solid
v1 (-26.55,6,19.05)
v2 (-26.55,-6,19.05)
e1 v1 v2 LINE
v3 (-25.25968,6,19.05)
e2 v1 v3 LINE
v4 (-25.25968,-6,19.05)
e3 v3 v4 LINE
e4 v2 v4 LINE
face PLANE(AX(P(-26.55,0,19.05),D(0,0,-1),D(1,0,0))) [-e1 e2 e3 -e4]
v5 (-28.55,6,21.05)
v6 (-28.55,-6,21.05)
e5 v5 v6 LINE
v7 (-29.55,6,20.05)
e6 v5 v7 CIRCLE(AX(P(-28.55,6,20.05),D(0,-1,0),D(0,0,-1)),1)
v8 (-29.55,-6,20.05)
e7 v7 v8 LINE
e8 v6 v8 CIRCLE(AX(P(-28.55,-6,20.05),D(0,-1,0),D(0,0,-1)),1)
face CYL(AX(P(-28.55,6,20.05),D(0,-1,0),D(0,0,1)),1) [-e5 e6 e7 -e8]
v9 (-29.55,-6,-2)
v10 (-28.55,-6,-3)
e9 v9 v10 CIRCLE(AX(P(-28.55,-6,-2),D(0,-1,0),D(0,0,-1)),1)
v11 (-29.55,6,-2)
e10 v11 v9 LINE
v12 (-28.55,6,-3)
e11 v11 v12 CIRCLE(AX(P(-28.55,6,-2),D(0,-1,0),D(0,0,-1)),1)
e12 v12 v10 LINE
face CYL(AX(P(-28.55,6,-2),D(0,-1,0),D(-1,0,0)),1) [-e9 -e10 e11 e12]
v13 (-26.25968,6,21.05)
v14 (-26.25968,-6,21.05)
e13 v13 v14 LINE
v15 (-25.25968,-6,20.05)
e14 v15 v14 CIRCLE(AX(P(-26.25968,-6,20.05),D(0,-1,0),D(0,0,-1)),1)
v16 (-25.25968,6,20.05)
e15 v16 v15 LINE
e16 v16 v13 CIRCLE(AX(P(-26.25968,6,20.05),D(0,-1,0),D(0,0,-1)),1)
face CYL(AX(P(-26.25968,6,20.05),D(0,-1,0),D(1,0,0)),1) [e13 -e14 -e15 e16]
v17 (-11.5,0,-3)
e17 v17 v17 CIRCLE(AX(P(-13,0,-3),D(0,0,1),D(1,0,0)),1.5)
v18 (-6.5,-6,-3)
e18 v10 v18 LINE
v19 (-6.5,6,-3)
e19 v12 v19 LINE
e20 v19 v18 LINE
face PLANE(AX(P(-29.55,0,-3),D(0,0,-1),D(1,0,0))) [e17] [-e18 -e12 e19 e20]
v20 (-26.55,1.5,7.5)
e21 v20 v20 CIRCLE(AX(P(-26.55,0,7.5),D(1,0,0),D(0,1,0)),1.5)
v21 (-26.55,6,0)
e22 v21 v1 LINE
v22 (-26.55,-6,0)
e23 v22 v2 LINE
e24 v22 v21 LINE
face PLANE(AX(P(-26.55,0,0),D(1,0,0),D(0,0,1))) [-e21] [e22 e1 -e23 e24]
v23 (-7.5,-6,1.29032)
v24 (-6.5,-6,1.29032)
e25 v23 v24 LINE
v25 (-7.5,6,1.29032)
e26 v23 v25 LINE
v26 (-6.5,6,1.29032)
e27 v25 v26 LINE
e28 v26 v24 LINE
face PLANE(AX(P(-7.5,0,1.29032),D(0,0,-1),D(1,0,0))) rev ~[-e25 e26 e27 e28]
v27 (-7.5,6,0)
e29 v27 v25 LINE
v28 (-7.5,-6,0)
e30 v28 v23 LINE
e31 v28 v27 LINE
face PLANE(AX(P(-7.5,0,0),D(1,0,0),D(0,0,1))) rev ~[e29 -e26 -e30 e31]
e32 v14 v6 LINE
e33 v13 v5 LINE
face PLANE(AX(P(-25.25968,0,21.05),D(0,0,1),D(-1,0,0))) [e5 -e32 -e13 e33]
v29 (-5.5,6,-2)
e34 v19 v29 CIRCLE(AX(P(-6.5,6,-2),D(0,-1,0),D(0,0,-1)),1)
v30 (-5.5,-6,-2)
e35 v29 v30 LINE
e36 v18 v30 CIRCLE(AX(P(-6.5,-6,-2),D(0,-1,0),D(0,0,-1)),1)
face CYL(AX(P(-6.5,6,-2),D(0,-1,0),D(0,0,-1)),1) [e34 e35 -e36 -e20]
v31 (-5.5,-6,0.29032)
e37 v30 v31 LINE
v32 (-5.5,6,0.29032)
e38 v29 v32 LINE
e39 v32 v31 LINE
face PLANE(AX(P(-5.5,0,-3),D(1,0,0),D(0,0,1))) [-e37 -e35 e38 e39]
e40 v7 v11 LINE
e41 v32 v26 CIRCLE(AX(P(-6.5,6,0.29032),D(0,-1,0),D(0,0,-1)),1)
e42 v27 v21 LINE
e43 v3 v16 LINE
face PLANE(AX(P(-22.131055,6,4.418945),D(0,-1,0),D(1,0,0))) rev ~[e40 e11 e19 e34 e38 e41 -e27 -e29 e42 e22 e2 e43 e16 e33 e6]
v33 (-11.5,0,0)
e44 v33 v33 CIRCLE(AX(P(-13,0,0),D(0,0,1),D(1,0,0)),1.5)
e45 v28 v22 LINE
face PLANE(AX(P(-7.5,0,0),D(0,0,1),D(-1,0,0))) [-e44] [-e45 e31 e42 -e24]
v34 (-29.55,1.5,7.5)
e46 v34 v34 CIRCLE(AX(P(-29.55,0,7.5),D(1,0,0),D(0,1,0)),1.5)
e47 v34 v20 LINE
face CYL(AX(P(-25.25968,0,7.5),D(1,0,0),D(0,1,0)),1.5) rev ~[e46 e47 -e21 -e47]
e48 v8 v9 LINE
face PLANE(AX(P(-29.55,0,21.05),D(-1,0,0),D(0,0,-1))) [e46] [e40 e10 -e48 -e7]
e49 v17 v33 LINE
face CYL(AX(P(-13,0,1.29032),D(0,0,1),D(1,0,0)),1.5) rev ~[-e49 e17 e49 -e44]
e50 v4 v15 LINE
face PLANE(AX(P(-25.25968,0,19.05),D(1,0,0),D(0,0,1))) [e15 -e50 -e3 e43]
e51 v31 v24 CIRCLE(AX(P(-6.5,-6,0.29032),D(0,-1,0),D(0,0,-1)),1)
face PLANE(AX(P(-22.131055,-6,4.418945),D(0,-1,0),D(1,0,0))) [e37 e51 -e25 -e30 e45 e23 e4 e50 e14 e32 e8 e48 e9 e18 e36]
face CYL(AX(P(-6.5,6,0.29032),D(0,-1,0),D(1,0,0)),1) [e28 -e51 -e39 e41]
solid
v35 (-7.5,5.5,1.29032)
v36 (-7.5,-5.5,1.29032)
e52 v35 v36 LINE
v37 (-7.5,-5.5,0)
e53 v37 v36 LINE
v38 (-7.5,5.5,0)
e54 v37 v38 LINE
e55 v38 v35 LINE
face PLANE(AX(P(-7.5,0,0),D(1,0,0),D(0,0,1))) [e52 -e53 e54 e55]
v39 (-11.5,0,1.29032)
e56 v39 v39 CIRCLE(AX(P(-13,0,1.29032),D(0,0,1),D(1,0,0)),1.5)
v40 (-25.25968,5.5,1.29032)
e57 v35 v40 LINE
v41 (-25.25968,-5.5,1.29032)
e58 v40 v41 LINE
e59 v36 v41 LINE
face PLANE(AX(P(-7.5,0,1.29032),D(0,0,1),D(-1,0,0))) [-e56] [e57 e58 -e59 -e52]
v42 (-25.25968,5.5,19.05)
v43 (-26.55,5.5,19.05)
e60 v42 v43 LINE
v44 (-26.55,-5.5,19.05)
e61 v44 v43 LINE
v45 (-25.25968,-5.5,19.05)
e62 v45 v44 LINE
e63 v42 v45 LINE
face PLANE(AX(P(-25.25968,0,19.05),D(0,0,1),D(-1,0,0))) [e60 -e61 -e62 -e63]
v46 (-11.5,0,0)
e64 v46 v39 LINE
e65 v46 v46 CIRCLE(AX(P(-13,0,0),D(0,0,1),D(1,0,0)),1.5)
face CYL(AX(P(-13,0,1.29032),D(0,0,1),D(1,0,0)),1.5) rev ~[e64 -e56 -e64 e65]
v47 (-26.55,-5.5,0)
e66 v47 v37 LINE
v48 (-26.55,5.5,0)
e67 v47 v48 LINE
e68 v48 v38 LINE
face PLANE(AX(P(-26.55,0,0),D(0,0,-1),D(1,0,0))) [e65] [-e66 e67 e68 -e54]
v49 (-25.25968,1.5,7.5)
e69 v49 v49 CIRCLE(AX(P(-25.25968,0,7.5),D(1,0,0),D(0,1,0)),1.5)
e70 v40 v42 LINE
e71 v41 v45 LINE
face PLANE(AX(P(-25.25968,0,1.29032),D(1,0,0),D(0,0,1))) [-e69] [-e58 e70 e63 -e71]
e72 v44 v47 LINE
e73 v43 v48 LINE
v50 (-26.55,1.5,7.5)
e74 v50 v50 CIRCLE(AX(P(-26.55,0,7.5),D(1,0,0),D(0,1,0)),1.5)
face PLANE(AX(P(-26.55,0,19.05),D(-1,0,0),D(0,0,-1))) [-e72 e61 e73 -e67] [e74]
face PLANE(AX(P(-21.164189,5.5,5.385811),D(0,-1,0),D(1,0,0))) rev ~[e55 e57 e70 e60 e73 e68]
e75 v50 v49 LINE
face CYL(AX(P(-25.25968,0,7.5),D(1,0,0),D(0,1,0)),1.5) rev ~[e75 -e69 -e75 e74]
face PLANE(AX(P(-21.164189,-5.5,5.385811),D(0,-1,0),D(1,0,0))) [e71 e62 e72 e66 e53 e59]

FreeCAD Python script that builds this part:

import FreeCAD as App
import Part
import Sketcher

V = App.Vector


def edges_at(feature, points):
    """Names of the edges that pass closest to the given points."""
    edges = feature.Shape.Edges
    near = lambda p: min(range(len(edges)), key=lambda i: edges[i].distToShape(Part.Vertex(*p))[0])
    return sorted({f"Edge{near(p) + 1}" for p in points})


def add_polygon(sketch, points):
    """Adds a closed chain of lines whose ends are joined by coincident constraints."""
    first, n = sketch.GeometryCount, len(points)
    for a, b in zip(points, points[1:] + points[:1]):
        sketch.addGeometry(Part.LineSegment(App.Vector(*a, 0), App.Vector(*b, 0)), False)
    for i in range(n):
        sketch.addConstraint(Sketcher.Constraint("Coincident", first + i, 2, first + (i + 1) % n, 1))

doc = App.newDocument("Part")
body = doc.addObject("PartDesign::Body", "Body")

# Sketch on XZ plane
sketch1 = doc.addObject("Sketcher::SketchObject", "Sketch")
body.addObject(sketch1)
sketch1.AttachmentSupport = (doc.XZ_Plane, [""])
sketch1.MapMode = "FlatFace"
add_polygon(sketch1, [(-7.5, 0), (-7.5, 1.3), (-25.3, 1.3), (-25.3, 19.1), (-26.6, 19.1), (-26.6, 0)])  # lines 0-5
sketch1.addConstraint([
    Sketcher.Constraint("Vertical", 0),
    Sketcher.Constraint("Horizontal", 1),
    Sketcher.Constraint("Vertical", 2),
    Sketcher.Constraint("Horizontal", 3),
    Sketcher.Constraint("Vertical", 4),
    Sketcher.Constraint("Horizontal", 5),
    Sketcher.Constraint("PointOnObject", 4, 2, -1),
    Sketcher.Constraint("Equal", 3, 0),
    Sketcher.Constraint("Equal", 1, 2),
    Sketcher.Constraint("DistanceX", 5, 1, 5, 2, 19.05),
    Sketcher.Constraint("DistanceX", 0, 2, -1, 1, 7.5),
    Sketcher.Constraint("DistanceX", 1, 2, 1, 1, 17.75968),
])
pad1 = doc.addObject("PartDesign::Pad", "Pad")
body.addObject(pad1)
pad1.Profile = sketch1
pad1.Length = 11
pad1.Midplane = True
body2 = doc.addObject("PartDesign::Body", "Body001")

# Sketch on XZ plane
sketch2 = doc.addObject("Sketcher::SketchObject", "Sketch001")
body2.addObject(sketch2)
sketch2.AttachmentSupport = (doc.getObject("XZ_Plane001"), [""])
sketch2.MapMode = "FlatFace"
add_polygon(sketch2, [(-26.6, 0), (-26.6, 19.1), (-25.3, 19.1), (-25.3, 21.1), (-29.6, 21.1), (-29.6, -3), (-5.5, -3), (-5.5, 1.3), (-7.5, 1.3), (-7.5, 0)])  # lines 0-9
sketch2.addConstraint([
    Sketcher.Constraint("Vertical", 0),
    Sketcher.Constraint("Horizontal", 1),
    Sketcher.Constraint("Vertical", 2),
    Sketcher.Constraint("Horizontal", 3),
    Sketcher.Constraint("Vertical", 4),
    Sketcher.Constraint("Horizontal", 5),
    Sketcher.Constraint("Vertical", 6),
    Sketcher.Constraint("Horizontal", 7),
    Sketcher.Constraint("Vertical", 8),
    Sketcher.Constraint("Horizontal", 9),
    Sketcher.Constraint("PointOnObject", 8, 2, -1),
    Sketcher.Constraint("Equal", 9, 0),
    Sketcher.Constraint("Equal", 7, 2),
    Sketcher.Constraint("Equal", 5, 4),
    Sketcher.Constraint("Equal", 3, 6),
    Sketcher.Constraint("DistanceX", 7, 2, 7, 1, 2.0),
    Sketcher.Constraint("DistanceY", 4, 2, -1, 1, 3.0),
    Sketcher.Constraint("DistanceX", 5, 1, 5, 2, 24.05),
    Sketcher.Constraint("DistanceX", 5, 2, -1, 1, 5.5),
    Sketcher.Constraint("DistanceX", 1, 1, 1, 2, 1.29032),
])
pad2 = doc.addObject("PartDesign::Pad", "Pad001")
body2.addObject(pad2)
pad2.Profile = sketch2
pad2.Length = 12
pad2.Midplane = True
body3 = doc.addObject("PartDesign::Body", "Body002")

# Sketch on XY plane
sketch3 = doc.addObject("Sketcher::SketchObject", "Sketch002")
body3.addObject(sketch3)
sketch3.AttachmentSupport = (doc.getObject("XY_Plane002"), [""])
sketch3.MapMode = "FlatFace"
sketch3.AttachmentOffset = App.Placement(V(0, 0, 1.29032), App.Rotation())
sketch3.addGeometry(Part.Circle(V(-13, 0, 0), V(0, 0, 1), 1.5), False)
sketch3.addConstraint([
    Sketcher.Constraint("PointOnObject", 0, 3, -1),
    Sketcher.Constraint("Diameter", 0, 3.0),
    Sketcher.Constraint("DistanceX", 0, 3, -1, 1, 13.0),
])
pad3 = doc.addObject("PartDesign::Pad", "Pad002")
body3.addObject(pad3)
pad3.Profile = sketch3
pad3.Length = 25
pad3.Midplane = True
doc.recompute()

body4 = doc.addObject("PartDesign::Body", "Body003")
body4.BaseFeature = body3
boolean = doc.addObject("PartDesign::Boolean", "Boolean")
body.addObject(boolean)
boolean.Type = "Cut"
boolean.addObjects([body4])
doc.recompute()

boolean2 = doc.addObject("PartDesign::Boolean", "Boolean001")
body2.addObject(boolean2)
boolean2.Type = "Cut"
boolean2.addObjects([body3])
body5 = doc.addObject("PartDesign::Body", "Body004")

# Sketch on YZ plane
sketch4 = doc.addObject("Sketcher::SketchObject", "Sketch003")
body5.addObject(sketch4)
sketch4.AttachmentSupport = (doc.getObject("YZ_Plane004"), [""])
sketch4.MapMode = "FlatFace"
sketch4.AttachmentOffset = App.Placement(V(0, 0, -25.25968), App.Rotation())
sketch4.addGeometry(Part.Circle(V(0, 7.5, 0), V(0, 0, 1), 1.5), False)
sketch4.addConstraint([
    Sketcher.Constraint("PointOnObject", 0, 3, -2),
    Sketcher.Constraint("Diameter", 0, 3.0),
    Sketcher.Constraint("DistanceY", -1, 1, 0, 3, 7.5),
])
pad4 = doc.addObject("PartDesign::Pad", "Pad003")
body5.addObject(pad4)
pad4.Profile = sketch4
pad4.Length = 25
pad4.Midplane = True
doc.recompute()

body6 = doc.addObject("PartDesign::Body", "Body005")
body6.BaseFeature = body5
boolean3 = doc.addObject("PartDesign::Boolean", "Boolean002")
body.addObject(boolean3)
boolean3.Type = "Cut"
boolean3.addObjects([body6])
doc.recompute()

boolean4 = doc.addObject("PartDesign::Boolean", "Boolean003")
body2.addObject(boolean4)
boolean4.Type = "Cut"
boolean4.addObjects([body5])
doc.recompute()

fillet = doc.addObject("PartDesign::Fillet", "Fillet")
body2.addObject(fillet)
fillet.Base = (boolean4, edges_at(boolean4, [
    (-25.26, 0, 21.05),
    (-5.5, 0, 1.29),
    (-29.55, 0, 21.05),
    (-5.5, 0, -3),
    (-29.55, 0, -3),
]))
fillet.Radius = 1

doc.recompute()
